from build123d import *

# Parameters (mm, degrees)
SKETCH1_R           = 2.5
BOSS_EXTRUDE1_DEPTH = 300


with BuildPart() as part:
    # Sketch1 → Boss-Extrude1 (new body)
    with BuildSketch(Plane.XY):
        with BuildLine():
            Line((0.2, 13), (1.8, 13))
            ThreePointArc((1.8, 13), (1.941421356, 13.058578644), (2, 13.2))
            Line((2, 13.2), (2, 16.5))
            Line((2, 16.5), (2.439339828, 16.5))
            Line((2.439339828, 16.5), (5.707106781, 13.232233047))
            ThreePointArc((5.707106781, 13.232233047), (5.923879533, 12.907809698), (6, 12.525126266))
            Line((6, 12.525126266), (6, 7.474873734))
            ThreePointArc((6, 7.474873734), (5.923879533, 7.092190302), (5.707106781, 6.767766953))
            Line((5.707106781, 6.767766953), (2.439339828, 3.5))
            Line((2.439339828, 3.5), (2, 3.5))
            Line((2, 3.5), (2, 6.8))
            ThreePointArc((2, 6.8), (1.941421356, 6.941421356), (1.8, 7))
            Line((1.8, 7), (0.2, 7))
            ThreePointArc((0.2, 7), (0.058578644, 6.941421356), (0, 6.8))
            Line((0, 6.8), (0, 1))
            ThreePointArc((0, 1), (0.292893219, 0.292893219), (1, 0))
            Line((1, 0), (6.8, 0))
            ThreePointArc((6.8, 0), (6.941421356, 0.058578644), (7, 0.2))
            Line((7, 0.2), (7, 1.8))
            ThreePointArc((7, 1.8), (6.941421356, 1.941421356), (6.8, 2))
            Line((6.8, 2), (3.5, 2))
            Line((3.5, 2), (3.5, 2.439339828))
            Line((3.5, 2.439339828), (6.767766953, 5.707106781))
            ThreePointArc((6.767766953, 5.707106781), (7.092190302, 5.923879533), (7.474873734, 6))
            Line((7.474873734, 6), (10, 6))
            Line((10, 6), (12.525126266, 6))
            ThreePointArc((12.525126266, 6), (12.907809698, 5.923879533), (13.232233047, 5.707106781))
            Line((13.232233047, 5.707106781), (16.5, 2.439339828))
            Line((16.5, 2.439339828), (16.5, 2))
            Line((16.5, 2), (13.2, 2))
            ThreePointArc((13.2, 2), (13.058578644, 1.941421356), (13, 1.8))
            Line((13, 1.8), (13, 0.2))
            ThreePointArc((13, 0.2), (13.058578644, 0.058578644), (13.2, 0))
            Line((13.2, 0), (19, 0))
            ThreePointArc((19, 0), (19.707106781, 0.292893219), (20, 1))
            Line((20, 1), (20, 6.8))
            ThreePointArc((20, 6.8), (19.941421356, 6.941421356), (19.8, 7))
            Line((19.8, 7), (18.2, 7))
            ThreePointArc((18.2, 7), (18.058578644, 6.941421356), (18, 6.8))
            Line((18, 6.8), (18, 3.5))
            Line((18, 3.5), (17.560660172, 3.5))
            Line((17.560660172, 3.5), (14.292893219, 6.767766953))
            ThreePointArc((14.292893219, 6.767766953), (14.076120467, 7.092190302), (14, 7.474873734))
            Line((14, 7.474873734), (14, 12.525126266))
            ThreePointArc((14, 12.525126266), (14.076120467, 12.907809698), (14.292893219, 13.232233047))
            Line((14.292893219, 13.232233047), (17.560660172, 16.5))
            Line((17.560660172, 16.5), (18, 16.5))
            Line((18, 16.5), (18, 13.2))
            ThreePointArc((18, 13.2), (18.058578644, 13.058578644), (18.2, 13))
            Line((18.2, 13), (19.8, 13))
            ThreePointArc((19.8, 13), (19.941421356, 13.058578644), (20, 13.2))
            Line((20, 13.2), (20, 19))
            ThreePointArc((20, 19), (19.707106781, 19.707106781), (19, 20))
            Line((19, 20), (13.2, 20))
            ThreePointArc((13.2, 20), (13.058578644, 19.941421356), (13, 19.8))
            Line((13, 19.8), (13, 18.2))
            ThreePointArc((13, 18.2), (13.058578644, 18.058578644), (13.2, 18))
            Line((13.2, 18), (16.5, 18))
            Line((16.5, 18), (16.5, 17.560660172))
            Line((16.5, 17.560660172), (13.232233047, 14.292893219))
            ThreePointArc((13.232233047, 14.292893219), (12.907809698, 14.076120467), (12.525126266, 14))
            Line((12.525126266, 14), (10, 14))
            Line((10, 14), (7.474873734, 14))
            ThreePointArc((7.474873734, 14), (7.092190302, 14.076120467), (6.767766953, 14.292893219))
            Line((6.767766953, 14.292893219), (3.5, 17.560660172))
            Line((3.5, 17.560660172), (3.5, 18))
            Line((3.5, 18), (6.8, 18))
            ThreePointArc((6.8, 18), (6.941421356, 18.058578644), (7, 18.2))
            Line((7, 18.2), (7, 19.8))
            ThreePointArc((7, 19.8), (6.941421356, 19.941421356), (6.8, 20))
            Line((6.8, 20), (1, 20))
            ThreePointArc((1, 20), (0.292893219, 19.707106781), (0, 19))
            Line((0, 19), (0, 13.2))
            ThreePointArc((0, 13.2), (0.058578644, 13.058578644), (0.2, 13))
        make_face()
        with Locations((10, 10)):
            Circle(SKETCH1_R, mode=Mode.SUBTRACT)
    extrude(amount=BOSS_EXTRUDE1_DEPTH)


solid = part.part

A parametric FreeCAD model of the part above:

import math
import FreeCAD as App
import Part
import Sketcher

doc = App.newDocument("Part")
body = doc.addObject("PartDesign::Body", "Body")

# Sketch on XY plane
sketch1 = doc.addObject("Sketcher::SketchObject", "Sketch")
body.addObject(sketch1)
sketch1.AttachmentSupport = (doc.XY_Plane, [""])
sketch1.MapMode = "FlatFace"
sketch1.addGeometry(Part.LineSegment(App.Vector(0.2, 13, 0), App.Vector(1.8, 13, 0)), False)
sketch1.addGeometry(Part.ArcOfCircle(Part.Circle(App.Vector(1.8, 13.2, 0), App.Vector(0, 0, 1), 0.2), math.radians(-90), math.radians(0)), False)
sketch1.addGeometry(Part.LineSegment(App.Vector(2, 13.2, 0), App.Vector(2, 16.5, 0)), False)
sketch1.addGeometry(Part.LineSegment(App.Vector(2, 16.5, 0), App.Vector(2.44, 16.5, 0)), False)
sketch1.addGeometry(Part.LineSegment(App.Vector(2.44, 16.5, 0), App.Vector(5.71, 13.23, 0)), False)
sketch1.addGeometry(Part.ArcOfCircle(Part.Circle(App.Vector(5, 12.53, 0), App.Vector(0, 0, 1), 1), math.radians(0), math.radians(45)), False)
sketch1.addGeometry(Part.LineSegment(App.Vector(6, 12.53, 0), App.Vector(6, 7.47, 0)), False)
sketch1.addGeometry(Part.ArcOfCircle(Part.Circle(App.Vector(5, 7.47, 0), App.Vector(0, 0, 1), 1), math.radians(-45), math.radians(0)), False)
sketch1.addGeometry(Part.LineSegment(App.Vector(5.71, 6.77, 0), App.Vector(2.44, 3.5, 0)), False)
sketch1.addGeometry(Part.LineSegment(App.Vector(2.44, 3.5, 0), App.Vector(2, 3.5, 0)), False)
sketch1.addGeometry(Part.LineSegment(App.Vector(2, 3.5, 0), App.Vector(2, 6.8, 0)), False)
sketch1.addGeometry(Part.ArcOfCircle(Part.Circle(App.Vector(1.8, 6.8, 0), App.Vector(0, 0, 1), 0.2), math.radians(0), math.radians(90)), False)
sketch1.addGeometry(Part.LineSegment(App.Vector(1.8, 7, 0), App.Vector(0.2, 7, 0)), False)
sketch1.addGeometry(Part.ArcOfCircle(Part.Circle(App.Vector(0.2, 6.8, 0), App.Vector(0, 0, 1), 0.2), math.radians(90), math.radians(180)), False)
sketch1.addGeometry(Part.LineSegment(App.Vector(0, 6.8, 0), App.Vector(0, 1, 0)), False)
sketch1.addGeometry(Part.ArcOfCircle(Part.Circle(App.Vector(1, 1, 0), App.Vector(0, 0, 1), 1), math.radians(-180), math.radians(-90)), False)
sketch1.addGeometry(Part.LineSegment(App.Vector(1, 0, 0), App.Vector(6.8, 0, 0)), False)
sketch1.addGeometry(Part.ArcOfCircle(Part.Circle(App.Vector(6.8, 0.2, 0), App.Vector(0, 0, 1), 0.2), math.radians(-90), math.radians(0)), False)
sketch1.addGeometry(Part.LineSegment(App.Vector(7, 0.2, 0), App.Vector(7, 1.8, 0)), False)
sketch1.addGeometry(Part.ArcOfCircle(Part.Circle(App.Vector(6.8, 1.8, 0), App.Vector(0, 0, 1), 0.2), math.radians(0), math.radians(90)), False)
sketch1.addGeometry(Part.LineSegment(App.Vector(6.8, 2, 0), App.Vector(3.5, 2, 0)), False)
sketch1.addGeometry(Part.LineSegment(App.Vector(3.5, 2, 0), App.Vector(3.5, 2.44, 0)), False)
sketch1.addGeometry(Part.LineSegment(App.Vector(3.5, 2.44, 0), App.Vector(6.77, 5.71, 0)), False)
sketch1.addGeometry(Part.ArcOfCircle(Part.Circle(App.Vector(7.47, 5, 0), App.Vector(0, 0, 1), 1), math.radians(90), math.radians(135)), False)
sketch1.addGeometry(Part.LineSegment(App.Vector(7.47, 6, 0), App.Vector(12.53, 6, 0)), False)
sketch1.addGeometry(Part.ArcOfCircle(Part.Circle(App.Vector(12.53, 5, 0), App.Vector(0, 0, 1), 1), math.radians(45), math.radians(90)), False)
sketch1.addGeometry(Part.LineSegment(App.Vector(13.23, 5.71, 0), App.Vector(16.5, 2.44, 0)), False)
sketch1.addGeometry(Part.LineSegment(App.Vector(16.5, 2.44, 0), App.Vector(16.5, 2, 0)), False)
sketch1.addGeometry(Part.LineSegment(App.Vector(16.5, 2, 0), App.Vector(13.2, 2, 0)), False)
sketch1.addGeometry(Part.ArcOfCircle(Part.Circle(App.Vector(13.2, 1.8, 0), App.Vector(0, 0, 1), 0.2), math.radians(90), math.radians(180)), False)
sketch1.addGeometry(Part.LineSegment(App.Vector(13, 1.8, 0), App.Vector(13, 0.2, 0)), False)
sketch1.addGeometry(Part.ArcOfCircle(Part.Circle(App.Vector(13.2, 0.2, 0), App.Vector(0, 0, 1), 0.2), math.radians(-180), math.radians(-90)), False)
sketch1.addGeometry(Part.LineSegment(App.Vector(13.2, 0, 0), App.Vector(19, 0, 0)), False)
sketch1.addGeometry(Part.ArcOfCircle(Part.Circle(App.Vector(19, 1, 0), App.Vector(0, 0, 1), 1), math.radians(-90), math.radians(0)), False)
sketch1.addGeometry(Part.LineSegment(App.Vector(20, 1, 0), App.Vector(20, 6.8, 0)), False)
sketch1.addGeometry(Part.ArcOfCircle(Part.Circle(App.Vector(19.8, 6.8, 0), App.Vector(0, 0, 1), 0.2), math.radians(0), math.radians(90)), False)
sketch1.addGeometry(Part.LineSegment(App.Vector(19.8, 7, 0), App.Vector(18.2, 7, 0)), False)
sketch1.addGeometry(Part.ArcOfCircle(Part.Circle(App.Vector(18.2, 6.8, 0), App.Vector(0, 0, 1), 0.2), math.radians(90), math.radians(180)), False)
sketch1.addGeometry(Part.LineSegment(App.Vector(18, 6.8, 0), App.Vector(18, 3.5, 0)), False)
sketch1.addGeometry(Part.LineSegment(App.Vector(18, 3.5, 0), App.Vector(17.56, 3.5, 0)), False)
sketch1.addGeometry(Part.LineSegment(App.Vector(17.56, 3.5, 0), App.Vector(14.29, 6.77, 0)), False)
sketch1.addGeometry(Part.ArcOfCircle(Part.Circle(App.Vector(15, 7.47, 0), App.Vector(0, 0, 1), 1), math.radians(180), math.radians(225)), False)
sketch1.addGeometry(Part.LineSegment(App.Vector(14, 7.47, 0), App.Vector(14, 12.53, 0)), False)
sketch1.addGeometry(Part.ArcOfCircle(Part.Circle(App.Vector(15, 12.53, 0), App.Vector(0, 0, 1), 1), math.radians(135), math.radians(180)), False)
sketch1.addGeometry(Part.LineSegment(App.Vector(14.29, 13.23, 0), App.Vector(17.56, 16.5, 0)), False)
sketch1.addGeometry(Part.LineSegment(App.Vector(17.56, 16.5, 0), App.Vector(18, 16.5, 0)), False)
sketch1.addGeometry(Part.LineSegment(App.Vector(18, 16.5, 0), App.Vector(18, 13.2, 0)), False)
sketch1.addGeometry(Part.ArcOfCircle(Part.Circle(App.Vector(18.2, 13.2, 0), App.Vector(0, 0, 1), 0.2), math.radians(-180), math.radians(-90)), False)
sketch1.addGeometry(Part.LineSegment(App.Vector(18.2, 13, 0), App.Vector(19.8, 13, 0)), False)
sketch1.addGeometry(Part.ArcOfCircle(Part.Circle(App.Vector(19.8, 13.2, 0), App.Vector(0, 0, 1), 0.2), math.radians(-90), math.radians(0)), False)
sketch1.addGeometry(Part.LineSegment(App.Vector(20, 13.2, 0), App.Vector(20, 19, 0)), False)
sketch1.addGeometry(Part.ArcOfCircle(Part.Circle(App.Vector(19, 19, 0), App.Vector(0, 0, 1), 1), math.radians(0), math.radians(90)), False)
sketch1.addGeometry(Part.LineSegment(App.Vector(19, 20, 0), App.Vector(13.2, 20, 0)), False)
sketch1.addGeometry(Part.ArcOfCircle(Part.Circle(App.Vector(13.2, 19.8, 0), App.Vector(0, 0, 1), 0.2), math.radians(90), math.radians(180)), False)
sketch1.addGeometry(Part.LineSegment(App.Vector(13, 19.8, 0), App.Vector(13, 18.2, 0)), False)
sketch1.addGeometry(Part.ArcOfCircle(Part.Circle(App.Vector(13.2, 18.2, 0), App.Vector(0, 0, 1), 0.2), math.radians(-180), math.radians(-90)), False)
sketch1.addGeometry(Part.LineSegment(App.Vector(13.2, 18, 0), App.Vector(16.5, 18, 0)), False)
sketch1.addGeometry(Part.LineSegment(App.Vector(16.5, 18, 0), App.Vector(16.5, 17.56, 0)), False)
sketch1.addGeometry(Part.LineSegment(App.Vector(16.5, 17.56, 0), App.Vector(13.23, 14.29, 0)), False)
sketch1.addGeometry(Part.ArcOfCircle(Part.Circle(App.Vector(12.53, 15, 0), App.Vector(0, 0, 1), 1), math.radians(-90), math.radians(-45)), False)
sketch1.addGeometry(Part.LineSegment(App.Vector(12.53, 14, 0), App.Vector(7.47, 14, 0)), False)
sketch1.addGeometry(Part.ArcOfCircle(Part.Circle(App.Vector(7.47, 15, 0), App.Vector(0, 0, 1), 1), math.radians(-135), math.radians(-90)), False)
sketch1.addGeometry(Part.LineSegment(App.Vector(6.77, 14.29, 0), App.Vector(3.5, 17.56, 0)), False)
sketch1.addGeometry(Part.LineSegment(App.Vector(3.5, 17.56, 0), App.Vector(3.5, 18, 0)), False)
sketch1.addGeometry(Part.LineSegment(App.Vector(3.5, 18, 0), App.Vector(6.8, 18, 0)), False)
sketch1.addGeometry(Part.ArcOfCircle(Part.Circle(App.Vector(6.8, 18.2, 0), App.Vector(0, 0, 1), 0.2), math.radians(-90), math.radians(0)), False)
sketch1.addGeometry(Part.LineSegment(App.Vector(7, 18.2, 0), App.Vector(7, 19.8, 0)), False)
sketch1.addGeometry(Part.ArcOfCircle(Part.Circle(App.Vector(6.8, 19.8, 0), App.Vector(0, 0, 1), 0.2), math.radians(0), math.radians(90)), False)
sketch1.addGeometry(Part.LineSegment(App.Vector(6.8, 20, 0), App.Vector(1, 20, 0)), False)
sketch1.addGeometry(Part.ArcOfCircle(Part.Circle(App.Vector(1, 19, 0), App.Vector(0, 0, 1), 1), math.radians(90), math.radians(180)), False)
sketch1.addGeometry(Part.LineSegment(App.Vector(0, 19, 0), App.Vector(0, 13.2, 0)), False)
sketch1.addGeometry(Part.ArcOfCircle(Part.Circle(App.Vector(0.2, 13.2, 0), App.Vector(0, 0, 1), 0.2), math.radians(-180), math.radians(-90)), False)
sketch1.addGeometry(Part.Circle(App.Vector(10, 10, 0), App.Vector(0, 0, 1), 2.5), False)
sketch1.addConstraint(Sketcher.Constraint("Tangent", 0, 2, 1, 1))
sketch1.addConstraint(Sketcher.Constraint("Tangent", 1, 2, 2, 1))
sketch1.addConstraint(Sketcher.Constraint("Coincident", 2, 2, 3, 1))
sketch1.addConstraint(Sketcher.Constraint("Coincident", 3, 2, 4, 1))
sketch1.addConstraint(Sketcher.Constraint("Tangent", 4, 2, 5, 2))
sketch1.addConstraint(Sketcher.Constraint("Tangent", 5, 1, 6, 1))
sketch1.addConstraint(Sketcher.Constraint("Tangent", 6, 2, 7, 2))
sketch1.addConstraint(Sketcher.Constraint("Tangent", 7, 1, 8, 1))
sketch1.addConstraint(Sketcher.Constraint("Coincident", 8, 2, 9, 1))
sketch1.addConstraint(Sketcher.Constraint("Coincident", 9, 2, 10, 1))
sketch1.addConstraint(Sketcher.Constraint("Tangent", 10, 2, 11, 1))
sketch1.addConstraint(Sketcher.Constraint("Tangent", 11, 2, 12, 1))
sketch1.addConstraint(Sketcher.Constraint("Tangent", 12, 2, 13, 1))
sketch1.addConstraint(Sketcher.Constraint("Tangent", 13, 2, 14, 1))
sketch1.addConstraint(Sketcher.Constraint("Tangent", 14, 2, 15, 1))
sketch1.addConstraint(Sketcher.Constraint("Tangent", 15, 2, 16, 1))
sketch1.addConstraint(Sketcher.Constraint("Tangent", 16, 2, 17, 1))
sketch1.addConstraint(Sketcher.Constraint("Tangent", 17, 2, 18, 1))
sketch1.addConstraint(Sketcher.Constraint("Tangent", 18, 2, 19, 1))
sketch1.addConstraint(Sketcher.Constraint("Tangent", 19, 2, 20, 1))
sketch1.addConstraint(Sketcher.Constraint("Coincident", 20, 2, 21, 1))
sketch1.addConstraint(Sketcher.Constraint("Coincident", 21, 2, 22, 1))
sketch1.addConstraint(Sketcher.Constraint("Tangent", 22, 2, 23, 2))
sketch1.addConstraint(Sketcher.Constraint("Tangent", 23, 1, 24, 1))
sketch1.addConstraint(Sketcher.Constraint("Tangent", 24, 2, 25, 2))
sketch1.addConstraint(Sketcher.Constraint("Tangent", 25, 1, 26, 1))
sketch1.addConstraint(Sketcher.Constraint("Coincident", 26, 2, 27, 1))
sketch1.addConstraint(Sketcher.Constraint("Coincident", 27, 2, 28, 1))
sketch1.addConstraint(Sketcher.Constraint("Tangent", 28, 2, 29, 1))
sketch1.addConstraint(Sketcher.Constraint("Tangent", 29, 2, 30, 1))
sketch1.addConstraint(Sketcher.Constraint("Tangent", 30, 2, 31, 1))
sketch1.addConstraint(Sketcher.Constraint("Tangent", 31, 2, 32, 1))
sketch1.addConstraint(Sketcher.Constraint("Tangent", 32, 2, 33, 1))
sketch1.addConstraint(Sketcher.Constraint("Tangent", 33, 2, 34, 1))
sketch1.addConstraint(Sketcher.Constraint("Tangent", 34, 2, 35, 1))
sketch1.addConstraint(Sketcher.Constraint("Tangent", 35, 2, 36, 1))
sketch1.addConstraint(Sketcher.Constraint("Tangent", 36, 2, 37, 1))
sketch1.addConstraint(Sketcher.Constraint("Tangent", 37, 2, 38, 1))
sketch1.addConstraint(Sketcher.Constraint("Coincident", 38, 2, 39, 1))
sketch1.addConstraint(Sketcher.Constraint("Coincident", 39, 2, 40, 1))
sketch1.addConstraint(Sketcher.Constraint("Tangent", 40, 2, 41, 2))
sketch1.addConstraint(Sketcher.Constraint("Tangent", 41, 1, 42, 1))
sketch1.addConstraint(Sketcher.Constraint("Tangent", 42, 2, 43, 2))
sketch1.addConstraint(Sketcher.Constraint("Tangent", 43, 1, 44, 1))
sketch1.addConstraint(Sketcher.Constraint("Coincident", 44, 2, 45, 1))
sketch1.addConstraint(Sketcher.Constraint("Coincident", 45, 2, 46, 1))
sketch1.addConstraint(Sketcher.Constraint("Tangent", 46, 2, 47, 1))
sketch1.addConstraint(Sketcher.Constraint("Tangent", 47, 2, 48, 1))
sketch1.addConstraint(Sketcher.Constraint("Tangent", 48, 2, 49, 1))
sketch1.addConstraint(Sketcher.Constraint("Tangent", 49, 2, 50, 1))
sketch1.addConstraint(Sketcher.Constraint("Tangent", 50, 2, 51, 1))
sketch1.addConstraint(Sketcher.Constraint("Tangent", 51, 2, 52, 1))
sketch1.addConstraint(Sketcher.Constraint("Tangent", 52, 2, 53, 1))
sketch1.addConstraint(Sketcher.Constraint("Tangent", 53, 2, 54, 1))
sketch1.addConstraint(Sketcher.Constraint("Tangent", 54, 2, 55, 1))
sketch1.addConstraint(Sketcher.Constraint("Tangent", 55, 2, 56, 1))
sketch1.addConstraint(Sketcher.Constraint("Coincident", 56, 2, 57, 1))
sketch1.addConstraint(Sketcher.Constraint("Coincident", 57, 2, 58, 1))
sketch1.addConstraint(Sketcher.Constraint("Tangent", 58, 2, 59, 2))
sketch1.addConstraint(Sketcher.Constraint("Tangent", 59, 1, 60, 1))
sketch1.addConstraint(Sketcher.Constraint("Tangent", 60, 2, 61, 2))
sketch1.addConstraint(Sketcher.Constraint("Tangent", 61, 1, 62, 1))
sketch1.addConstraint(Sketcher.Constraint("Coincident", 62, 2, 63, 1))
sketch1.addConstraint(Sketcher.Constraint("Coincident", 63, 2, 64, 1))
sketch1.addConstraint(Sketcher.Constraint("Tangent", 64, 2, 65, 1))
sketch1.addConstraint(Sketcher.Constraint("Tangent", 65, 2, 66, 1))
sketch1.addConstraint(Sketcher.Constraint("Tangent", 66, 2, 67, 1))
sketch1.addConstraint(Sketcher.Constraint("Tangent", 67, 2, 68, 1))
sketch1.addConstraint(Sketcher.Constraint("Tangent", 68, 2, 69, 1))
sketch1.addConstraint(Sketcher.Constraint("Tangent", 69, 2, 70, 1))
sketch1.addConstraint(Sketcher.Constraint("Tangent", 70, 2, 71, 1))
sketch1.addConstraint(Sketcher.Constraint("Tangent", 71, 2, 0, 1))
sketch1.addConstraint(Sketcher.Constraint("Horizontal", 0))
sketch1.addConstraint(Sketcher.Constraint("Vertical", 2))
sketch1.addConstraint(Sketcher.Constraint("Horizontal", 3))
sketch1.addConstraint(Sketcher.Constraint("Vertical", 6))
sketch1.addConstraint(Sketcher.Constraint("Horizontal", 9))
sketch1.addConstraint(Sketcher.Constraint("Vertical", 10))
sketch1.addConstraint(Sketcher.Constraint("Horizontal", 12))
sketch1.addConstraint(Sketcher.Constraint("Vertical", 14))
sketch1.addConstraint(Sketcher.Constraint("Horizontal", 16))
sketch1.addConstraint(Sketcher.Constraint("Vertical", 18))
sketch1.addConstraint(Sketcher.Constraint("Horizontal", 20))
sketch1.addConstraint(Sketcher.Constraint("Vertical", 21))
sketch1.addConstraint(Sketcher.Constraint("Horizontal", 24))
sketch1.addConstraint(Sketcher.Constraint("Vertical", 27))
sketch1.addConstraint(Sketcher.Constraint("Horizontal", 28))
sketch1.addConstraint(Sketcher.Constraint("Vertical", 30))
sketch1.addConstraint(Sketcher.Constraint("Horizontal", 32))
sketch1.addConstraint(Sketcher.Constraint("Vertical", 34))
sketch1.addConstraint(Sketcher.Constraint("Horizontal", 36))
sketch1.addConstraint(Sketcher.Constraint("Vertical", 38))
sketch1.addConstraint(Sketcher.Constraint("Horizontal", 39))
sketch1.addConstraint(Sketcher.Constraint("Vertical", 42))
sketch1.addConstraint(Sketcher.Constraint("Horizontal", 45))
sketch1.addConstraint(Sketcher.Constraint("Vertical", 46))
sketch1.addConstraint(Sketcher.Constraint("Horizontal", 48))
sketch1.addConstraint(Sketcher.Constraint("Vertical", 50))
sketch1.addConstraint(Sketcher.Constraint("Horizontal", 52))
sketch1.addConstraint(Sketcher.Constraint("Vertical", 54))
sketch1.addConstraint(Sketcher.Constraint("Horizontal", 56))
sketch1.addConstraint(Sketcher.Constraint("Vertical", 57))
sketch1.addConstraint(Sketcher.Constraint("Horizontal", 60))
sketch1.addConstraint(Sketcher.Constraint("Vertical", 63))
sketch1.addConstraint(Sketcher.Constraint("Horizontal", 64))
sketch1.addConstraint(Sketcher.Constraint("Vertical", 66))
sketch1.addConstraint(Sketcher.Constraint("Horizontal", 68))
sketch1.addConstraint(Sketcher.Constraint("Vertical", 70))
sketch1.addConstraint(Sketcher.Constraint("Equal", 5, 7))
sketch1.addConstraint(Sketcher.Constraint("Equal", 1, 11))
sketch1.addConstraint(Sketcher.Constraint("Equal", 11, 13))
sketch1.addConstraint(Sketcher.Constraint("Equal", 7, 15))
sketch1.addConstraint(Sketcher.Constraint("Equal", 13, 17))
sketch1.addConstraint(Sketcher.Constraint("Equal", 17, 19))
sketch1.addConstraint(Sketcher.Constraint("Equal", 15, 23))
sketch1.addConstraint(Sketcher.Constraint("Equal", 23, 25))
sketch1.addConstraint(Sketcher.Constraint("Equal", 19, 29))
sketch1.addConstraint(Sketcher.Constraint("Equal", 29, 31))
sketch1.addConstraint(Sketcher.Constraint("Equal", 25, 33))
sketch1.addConstraint(Sketcher.Constraint("Equal", 31, 35))
sketch1.addConstraint(Sketcher.Constraint("Equal", 35, 37))
sketch1.addConstraint(Sketcher.Constraint("Equal", 33, 41))
sketch1.addConstraint(Sketcher.Constraint("Equal", 41, 43))
sketch1.addConstraint(Sketcher.Constraint("Equal", 37, 47))
sketch1.addConstraint(Sketcher.Constraint("Equal", 47, 49))
sketch1.addConstraint(Sketcher.Constraint("Equal", 43, 51))
sketch1.addConstraint(Sketcher.Constraint("Equal", 49, 53))
sketch1.addConstraint(Sketcher.Constraint("Equal", 53, 55))
sketch1.addConstraint(Sketcher.Constraint("Equal", 51, 59))
sketch1.addConstraint(Sketcher.Constraint("Equal", 59, 61))
sketch1.addConstraint(Sketcher.Constraint("Equal", 55, 65))
sketch1.addConstraint(Sketcher.Constraint("Equal", 65, 67))
sketch1.addConstraint(Sketcher.Constraint("Equal", 61, 69))
sketch1.addConstraint(Sketcher.Constraint("Equal", 67, 71))
sketch1.addConstraint(Sketcher.Constraint("PointOnObject", 13, 2, -2))
sketch1.addConstraint(Sketcher.Constraint("PointOnObject", 15, 2, -1))
sketch1.addConstraint(Sketcher.Constraint("PointOnObject", 31, 2, -1))
sketch1.addConstraint(Sketcher.Constraint("PointOnObject", 69, 2, -2))
sketch1.addConstraint(Sketcher.Constraint("Perpendicular", 4, 8))
sketch1.addConstraint(Sketcher.Constraint("Parallel", 8, 22))
sketch1.addConstraint(Sketcher.Constraint("Perpendicular", 22, 26))
sketch1.addConstraint(Sketcher.Constraint("Parallel", 26, 40))
sketch1.addConstraint(Sketcher.Constraint("Perpendicular", 40, 44))
sketch1.addConstraint(Sketcher.Constraint("Parallel", 44, 58))
sketch1.addConstraint(Sketcher.Constraint("Perpendicular", 58, 62))
sketch1.addConstraint(Sketcher.Constraint("Horizontal", 19, 3, 29, 3))
sketch1.addConstraint(Sketcher.Constraint("Horizontal", 13, 3, 35, 3))
sketch1.addConstraint(Sketcher.Constraint("Horizontal", 7, 3, 41, 3))
sketch1.addConstraint(Sketcher.Constraint("Horizontal", 5, 3, 43, 3))
sketch1.addConstraint(Sketcher.Constraint("Horizontal", 1, 3, 47, 3))
sketch1.addConstraint(Sketcher.Constraint("Horizontal", 55, 3, 65, 3))
sketch1.addConstraint(Sketcher.Constraint("Horizontal", 53, 3, 67, 3))
sketch1.addConstraint(Sketcher.Constraint("Horizontal", 22, 2, 25, 1))
sketch1.addConstraint(Sketcher.Constraint("Horizontal", 21, 2, 26, 2))
sketch1.addConstraint(Sketcher.Constraint("Horizontal", 9, 2, 38, 2))
sketch1.addConstraint(Sketcher.Constraint("Horizontal", 3, 2, 44, 2))
sketch1.addConstraint(Sketcher.Constraint("Horizontal", 57, 2, 62, 2))
sketch1.addConstraint(Sketcher.Constraint("Vertical", 1, 3, 11, 3))
sketch1.addConstraint(Sketcher.Constraint("Vertical", 37, 3, 47, 3))
sketch1.addConstraint(Sketcher.Constraint("Vertical", 35, 3, 49, 3))
sketch1.addConstraint(Sketcher.Constraint("Vertical", 31, 3, 53, 3))
sketch1.addConstraint(Sketcher.Constraint("Vertical", 25, 3, 59, 3))
sketch1.addConstraint(Sketcher.Constraint("Vertical", 23, 3, 61, 3))
sketch1.addConstraint(Sketcher.Constraint("Vertical", 19, 3, 65, 3))
sketch1.addConstraint(Sketcher.Constraint("Vertical", 3, 2, 8, 2))
sketch1.addConstraint(Sketcher.Constraint("Vertical", 27, 2, 56, 2))
sketch1.addConstraint(Sketcher.Constraint("Equal", 20, 28))
sketch1.addConstraint(Sketcher.Constraint("Equal", 16, 32))
sketch1.addConstraint(Sketcher.Constraint("Equal", 12, 36))
sketch1.addConstraint(Sketcher.Constraint("Equal", 9, 39))
sketch1.addConstraint(Sketcher.Constraint("Equal", 64, 2))
sketch1.addConstraint(Sketcher.Constraint("Equal", 60, 6))
sketch1.addConstraint(Sketcher.Constraint("Equal", 2, 10))
sketch1.addConstraint(Sketcher.Constraint("Equal", 68, 14))
sketch1.addConstraint(Sketcher.Constraint("Equal", 48, 18))
sketch1.addConstraint(Sketcher.Constraint("Equal", 45, 21))
sketch1.addConstraint(Sketcher.Constraint("Equal", 34, 50))
sketch1.addConstraint(Sketcher.Constraint("Equal", 30, 54))
sketch1.addConstraint(Sketcher.Constraint("Equal", 27, 57))
sketch1.addConstraint(Sketcher.Constraint("Equal", 8, 22))
sketch1.addConstraint(Sketcher.Constraint("Diameter", 72, 5.0))
sketch1.addConstraint(Sketcher.Constraint("Radius", 5, 1.0))
sketch1.addConstraint(Sketcher.Constraint("Radius", 1, 0.2))
sketch1.addConstraint(Sketcher.Constraint("DistanceX", 0, 1, 0, 2, 1.6))
sketch1.addConstraint(Sketcher.Constraint("DistanceX", 16, 1, 16, 2, 5.8))
sketch1.addConstraint(Sketcher.Constraint("DistanceX", 20, 2, 20, 1, 3.3))
sketch1.addConstraint(Sketcher.Constraint("DistanceX", -1, 1, 5, 3, 5.0))
sketch1.addConstraint(Sketcher.Constraint("DistanceX", -1, 1, 33, 3, 19.0))
sketch1.addConstraint(Sketcher.Constraint("DistanceX", -1, 1, 72, 3, 10.0))
sketch1.addConstraint(Sketcher.Constraint("DistanceY", -1, 1, 72, 3, 10.0))
sketch1.addConstraint(Sketcher.Constraint("DistanceX", 3, 1, 3, 2, 0.43934))
pad1 = doc.addObject("PartDesign::Pad", "Pad")
body.addObject(pad1)
pad1.Profile = sketch1
pad1.Length = 300

doc.recompute()
